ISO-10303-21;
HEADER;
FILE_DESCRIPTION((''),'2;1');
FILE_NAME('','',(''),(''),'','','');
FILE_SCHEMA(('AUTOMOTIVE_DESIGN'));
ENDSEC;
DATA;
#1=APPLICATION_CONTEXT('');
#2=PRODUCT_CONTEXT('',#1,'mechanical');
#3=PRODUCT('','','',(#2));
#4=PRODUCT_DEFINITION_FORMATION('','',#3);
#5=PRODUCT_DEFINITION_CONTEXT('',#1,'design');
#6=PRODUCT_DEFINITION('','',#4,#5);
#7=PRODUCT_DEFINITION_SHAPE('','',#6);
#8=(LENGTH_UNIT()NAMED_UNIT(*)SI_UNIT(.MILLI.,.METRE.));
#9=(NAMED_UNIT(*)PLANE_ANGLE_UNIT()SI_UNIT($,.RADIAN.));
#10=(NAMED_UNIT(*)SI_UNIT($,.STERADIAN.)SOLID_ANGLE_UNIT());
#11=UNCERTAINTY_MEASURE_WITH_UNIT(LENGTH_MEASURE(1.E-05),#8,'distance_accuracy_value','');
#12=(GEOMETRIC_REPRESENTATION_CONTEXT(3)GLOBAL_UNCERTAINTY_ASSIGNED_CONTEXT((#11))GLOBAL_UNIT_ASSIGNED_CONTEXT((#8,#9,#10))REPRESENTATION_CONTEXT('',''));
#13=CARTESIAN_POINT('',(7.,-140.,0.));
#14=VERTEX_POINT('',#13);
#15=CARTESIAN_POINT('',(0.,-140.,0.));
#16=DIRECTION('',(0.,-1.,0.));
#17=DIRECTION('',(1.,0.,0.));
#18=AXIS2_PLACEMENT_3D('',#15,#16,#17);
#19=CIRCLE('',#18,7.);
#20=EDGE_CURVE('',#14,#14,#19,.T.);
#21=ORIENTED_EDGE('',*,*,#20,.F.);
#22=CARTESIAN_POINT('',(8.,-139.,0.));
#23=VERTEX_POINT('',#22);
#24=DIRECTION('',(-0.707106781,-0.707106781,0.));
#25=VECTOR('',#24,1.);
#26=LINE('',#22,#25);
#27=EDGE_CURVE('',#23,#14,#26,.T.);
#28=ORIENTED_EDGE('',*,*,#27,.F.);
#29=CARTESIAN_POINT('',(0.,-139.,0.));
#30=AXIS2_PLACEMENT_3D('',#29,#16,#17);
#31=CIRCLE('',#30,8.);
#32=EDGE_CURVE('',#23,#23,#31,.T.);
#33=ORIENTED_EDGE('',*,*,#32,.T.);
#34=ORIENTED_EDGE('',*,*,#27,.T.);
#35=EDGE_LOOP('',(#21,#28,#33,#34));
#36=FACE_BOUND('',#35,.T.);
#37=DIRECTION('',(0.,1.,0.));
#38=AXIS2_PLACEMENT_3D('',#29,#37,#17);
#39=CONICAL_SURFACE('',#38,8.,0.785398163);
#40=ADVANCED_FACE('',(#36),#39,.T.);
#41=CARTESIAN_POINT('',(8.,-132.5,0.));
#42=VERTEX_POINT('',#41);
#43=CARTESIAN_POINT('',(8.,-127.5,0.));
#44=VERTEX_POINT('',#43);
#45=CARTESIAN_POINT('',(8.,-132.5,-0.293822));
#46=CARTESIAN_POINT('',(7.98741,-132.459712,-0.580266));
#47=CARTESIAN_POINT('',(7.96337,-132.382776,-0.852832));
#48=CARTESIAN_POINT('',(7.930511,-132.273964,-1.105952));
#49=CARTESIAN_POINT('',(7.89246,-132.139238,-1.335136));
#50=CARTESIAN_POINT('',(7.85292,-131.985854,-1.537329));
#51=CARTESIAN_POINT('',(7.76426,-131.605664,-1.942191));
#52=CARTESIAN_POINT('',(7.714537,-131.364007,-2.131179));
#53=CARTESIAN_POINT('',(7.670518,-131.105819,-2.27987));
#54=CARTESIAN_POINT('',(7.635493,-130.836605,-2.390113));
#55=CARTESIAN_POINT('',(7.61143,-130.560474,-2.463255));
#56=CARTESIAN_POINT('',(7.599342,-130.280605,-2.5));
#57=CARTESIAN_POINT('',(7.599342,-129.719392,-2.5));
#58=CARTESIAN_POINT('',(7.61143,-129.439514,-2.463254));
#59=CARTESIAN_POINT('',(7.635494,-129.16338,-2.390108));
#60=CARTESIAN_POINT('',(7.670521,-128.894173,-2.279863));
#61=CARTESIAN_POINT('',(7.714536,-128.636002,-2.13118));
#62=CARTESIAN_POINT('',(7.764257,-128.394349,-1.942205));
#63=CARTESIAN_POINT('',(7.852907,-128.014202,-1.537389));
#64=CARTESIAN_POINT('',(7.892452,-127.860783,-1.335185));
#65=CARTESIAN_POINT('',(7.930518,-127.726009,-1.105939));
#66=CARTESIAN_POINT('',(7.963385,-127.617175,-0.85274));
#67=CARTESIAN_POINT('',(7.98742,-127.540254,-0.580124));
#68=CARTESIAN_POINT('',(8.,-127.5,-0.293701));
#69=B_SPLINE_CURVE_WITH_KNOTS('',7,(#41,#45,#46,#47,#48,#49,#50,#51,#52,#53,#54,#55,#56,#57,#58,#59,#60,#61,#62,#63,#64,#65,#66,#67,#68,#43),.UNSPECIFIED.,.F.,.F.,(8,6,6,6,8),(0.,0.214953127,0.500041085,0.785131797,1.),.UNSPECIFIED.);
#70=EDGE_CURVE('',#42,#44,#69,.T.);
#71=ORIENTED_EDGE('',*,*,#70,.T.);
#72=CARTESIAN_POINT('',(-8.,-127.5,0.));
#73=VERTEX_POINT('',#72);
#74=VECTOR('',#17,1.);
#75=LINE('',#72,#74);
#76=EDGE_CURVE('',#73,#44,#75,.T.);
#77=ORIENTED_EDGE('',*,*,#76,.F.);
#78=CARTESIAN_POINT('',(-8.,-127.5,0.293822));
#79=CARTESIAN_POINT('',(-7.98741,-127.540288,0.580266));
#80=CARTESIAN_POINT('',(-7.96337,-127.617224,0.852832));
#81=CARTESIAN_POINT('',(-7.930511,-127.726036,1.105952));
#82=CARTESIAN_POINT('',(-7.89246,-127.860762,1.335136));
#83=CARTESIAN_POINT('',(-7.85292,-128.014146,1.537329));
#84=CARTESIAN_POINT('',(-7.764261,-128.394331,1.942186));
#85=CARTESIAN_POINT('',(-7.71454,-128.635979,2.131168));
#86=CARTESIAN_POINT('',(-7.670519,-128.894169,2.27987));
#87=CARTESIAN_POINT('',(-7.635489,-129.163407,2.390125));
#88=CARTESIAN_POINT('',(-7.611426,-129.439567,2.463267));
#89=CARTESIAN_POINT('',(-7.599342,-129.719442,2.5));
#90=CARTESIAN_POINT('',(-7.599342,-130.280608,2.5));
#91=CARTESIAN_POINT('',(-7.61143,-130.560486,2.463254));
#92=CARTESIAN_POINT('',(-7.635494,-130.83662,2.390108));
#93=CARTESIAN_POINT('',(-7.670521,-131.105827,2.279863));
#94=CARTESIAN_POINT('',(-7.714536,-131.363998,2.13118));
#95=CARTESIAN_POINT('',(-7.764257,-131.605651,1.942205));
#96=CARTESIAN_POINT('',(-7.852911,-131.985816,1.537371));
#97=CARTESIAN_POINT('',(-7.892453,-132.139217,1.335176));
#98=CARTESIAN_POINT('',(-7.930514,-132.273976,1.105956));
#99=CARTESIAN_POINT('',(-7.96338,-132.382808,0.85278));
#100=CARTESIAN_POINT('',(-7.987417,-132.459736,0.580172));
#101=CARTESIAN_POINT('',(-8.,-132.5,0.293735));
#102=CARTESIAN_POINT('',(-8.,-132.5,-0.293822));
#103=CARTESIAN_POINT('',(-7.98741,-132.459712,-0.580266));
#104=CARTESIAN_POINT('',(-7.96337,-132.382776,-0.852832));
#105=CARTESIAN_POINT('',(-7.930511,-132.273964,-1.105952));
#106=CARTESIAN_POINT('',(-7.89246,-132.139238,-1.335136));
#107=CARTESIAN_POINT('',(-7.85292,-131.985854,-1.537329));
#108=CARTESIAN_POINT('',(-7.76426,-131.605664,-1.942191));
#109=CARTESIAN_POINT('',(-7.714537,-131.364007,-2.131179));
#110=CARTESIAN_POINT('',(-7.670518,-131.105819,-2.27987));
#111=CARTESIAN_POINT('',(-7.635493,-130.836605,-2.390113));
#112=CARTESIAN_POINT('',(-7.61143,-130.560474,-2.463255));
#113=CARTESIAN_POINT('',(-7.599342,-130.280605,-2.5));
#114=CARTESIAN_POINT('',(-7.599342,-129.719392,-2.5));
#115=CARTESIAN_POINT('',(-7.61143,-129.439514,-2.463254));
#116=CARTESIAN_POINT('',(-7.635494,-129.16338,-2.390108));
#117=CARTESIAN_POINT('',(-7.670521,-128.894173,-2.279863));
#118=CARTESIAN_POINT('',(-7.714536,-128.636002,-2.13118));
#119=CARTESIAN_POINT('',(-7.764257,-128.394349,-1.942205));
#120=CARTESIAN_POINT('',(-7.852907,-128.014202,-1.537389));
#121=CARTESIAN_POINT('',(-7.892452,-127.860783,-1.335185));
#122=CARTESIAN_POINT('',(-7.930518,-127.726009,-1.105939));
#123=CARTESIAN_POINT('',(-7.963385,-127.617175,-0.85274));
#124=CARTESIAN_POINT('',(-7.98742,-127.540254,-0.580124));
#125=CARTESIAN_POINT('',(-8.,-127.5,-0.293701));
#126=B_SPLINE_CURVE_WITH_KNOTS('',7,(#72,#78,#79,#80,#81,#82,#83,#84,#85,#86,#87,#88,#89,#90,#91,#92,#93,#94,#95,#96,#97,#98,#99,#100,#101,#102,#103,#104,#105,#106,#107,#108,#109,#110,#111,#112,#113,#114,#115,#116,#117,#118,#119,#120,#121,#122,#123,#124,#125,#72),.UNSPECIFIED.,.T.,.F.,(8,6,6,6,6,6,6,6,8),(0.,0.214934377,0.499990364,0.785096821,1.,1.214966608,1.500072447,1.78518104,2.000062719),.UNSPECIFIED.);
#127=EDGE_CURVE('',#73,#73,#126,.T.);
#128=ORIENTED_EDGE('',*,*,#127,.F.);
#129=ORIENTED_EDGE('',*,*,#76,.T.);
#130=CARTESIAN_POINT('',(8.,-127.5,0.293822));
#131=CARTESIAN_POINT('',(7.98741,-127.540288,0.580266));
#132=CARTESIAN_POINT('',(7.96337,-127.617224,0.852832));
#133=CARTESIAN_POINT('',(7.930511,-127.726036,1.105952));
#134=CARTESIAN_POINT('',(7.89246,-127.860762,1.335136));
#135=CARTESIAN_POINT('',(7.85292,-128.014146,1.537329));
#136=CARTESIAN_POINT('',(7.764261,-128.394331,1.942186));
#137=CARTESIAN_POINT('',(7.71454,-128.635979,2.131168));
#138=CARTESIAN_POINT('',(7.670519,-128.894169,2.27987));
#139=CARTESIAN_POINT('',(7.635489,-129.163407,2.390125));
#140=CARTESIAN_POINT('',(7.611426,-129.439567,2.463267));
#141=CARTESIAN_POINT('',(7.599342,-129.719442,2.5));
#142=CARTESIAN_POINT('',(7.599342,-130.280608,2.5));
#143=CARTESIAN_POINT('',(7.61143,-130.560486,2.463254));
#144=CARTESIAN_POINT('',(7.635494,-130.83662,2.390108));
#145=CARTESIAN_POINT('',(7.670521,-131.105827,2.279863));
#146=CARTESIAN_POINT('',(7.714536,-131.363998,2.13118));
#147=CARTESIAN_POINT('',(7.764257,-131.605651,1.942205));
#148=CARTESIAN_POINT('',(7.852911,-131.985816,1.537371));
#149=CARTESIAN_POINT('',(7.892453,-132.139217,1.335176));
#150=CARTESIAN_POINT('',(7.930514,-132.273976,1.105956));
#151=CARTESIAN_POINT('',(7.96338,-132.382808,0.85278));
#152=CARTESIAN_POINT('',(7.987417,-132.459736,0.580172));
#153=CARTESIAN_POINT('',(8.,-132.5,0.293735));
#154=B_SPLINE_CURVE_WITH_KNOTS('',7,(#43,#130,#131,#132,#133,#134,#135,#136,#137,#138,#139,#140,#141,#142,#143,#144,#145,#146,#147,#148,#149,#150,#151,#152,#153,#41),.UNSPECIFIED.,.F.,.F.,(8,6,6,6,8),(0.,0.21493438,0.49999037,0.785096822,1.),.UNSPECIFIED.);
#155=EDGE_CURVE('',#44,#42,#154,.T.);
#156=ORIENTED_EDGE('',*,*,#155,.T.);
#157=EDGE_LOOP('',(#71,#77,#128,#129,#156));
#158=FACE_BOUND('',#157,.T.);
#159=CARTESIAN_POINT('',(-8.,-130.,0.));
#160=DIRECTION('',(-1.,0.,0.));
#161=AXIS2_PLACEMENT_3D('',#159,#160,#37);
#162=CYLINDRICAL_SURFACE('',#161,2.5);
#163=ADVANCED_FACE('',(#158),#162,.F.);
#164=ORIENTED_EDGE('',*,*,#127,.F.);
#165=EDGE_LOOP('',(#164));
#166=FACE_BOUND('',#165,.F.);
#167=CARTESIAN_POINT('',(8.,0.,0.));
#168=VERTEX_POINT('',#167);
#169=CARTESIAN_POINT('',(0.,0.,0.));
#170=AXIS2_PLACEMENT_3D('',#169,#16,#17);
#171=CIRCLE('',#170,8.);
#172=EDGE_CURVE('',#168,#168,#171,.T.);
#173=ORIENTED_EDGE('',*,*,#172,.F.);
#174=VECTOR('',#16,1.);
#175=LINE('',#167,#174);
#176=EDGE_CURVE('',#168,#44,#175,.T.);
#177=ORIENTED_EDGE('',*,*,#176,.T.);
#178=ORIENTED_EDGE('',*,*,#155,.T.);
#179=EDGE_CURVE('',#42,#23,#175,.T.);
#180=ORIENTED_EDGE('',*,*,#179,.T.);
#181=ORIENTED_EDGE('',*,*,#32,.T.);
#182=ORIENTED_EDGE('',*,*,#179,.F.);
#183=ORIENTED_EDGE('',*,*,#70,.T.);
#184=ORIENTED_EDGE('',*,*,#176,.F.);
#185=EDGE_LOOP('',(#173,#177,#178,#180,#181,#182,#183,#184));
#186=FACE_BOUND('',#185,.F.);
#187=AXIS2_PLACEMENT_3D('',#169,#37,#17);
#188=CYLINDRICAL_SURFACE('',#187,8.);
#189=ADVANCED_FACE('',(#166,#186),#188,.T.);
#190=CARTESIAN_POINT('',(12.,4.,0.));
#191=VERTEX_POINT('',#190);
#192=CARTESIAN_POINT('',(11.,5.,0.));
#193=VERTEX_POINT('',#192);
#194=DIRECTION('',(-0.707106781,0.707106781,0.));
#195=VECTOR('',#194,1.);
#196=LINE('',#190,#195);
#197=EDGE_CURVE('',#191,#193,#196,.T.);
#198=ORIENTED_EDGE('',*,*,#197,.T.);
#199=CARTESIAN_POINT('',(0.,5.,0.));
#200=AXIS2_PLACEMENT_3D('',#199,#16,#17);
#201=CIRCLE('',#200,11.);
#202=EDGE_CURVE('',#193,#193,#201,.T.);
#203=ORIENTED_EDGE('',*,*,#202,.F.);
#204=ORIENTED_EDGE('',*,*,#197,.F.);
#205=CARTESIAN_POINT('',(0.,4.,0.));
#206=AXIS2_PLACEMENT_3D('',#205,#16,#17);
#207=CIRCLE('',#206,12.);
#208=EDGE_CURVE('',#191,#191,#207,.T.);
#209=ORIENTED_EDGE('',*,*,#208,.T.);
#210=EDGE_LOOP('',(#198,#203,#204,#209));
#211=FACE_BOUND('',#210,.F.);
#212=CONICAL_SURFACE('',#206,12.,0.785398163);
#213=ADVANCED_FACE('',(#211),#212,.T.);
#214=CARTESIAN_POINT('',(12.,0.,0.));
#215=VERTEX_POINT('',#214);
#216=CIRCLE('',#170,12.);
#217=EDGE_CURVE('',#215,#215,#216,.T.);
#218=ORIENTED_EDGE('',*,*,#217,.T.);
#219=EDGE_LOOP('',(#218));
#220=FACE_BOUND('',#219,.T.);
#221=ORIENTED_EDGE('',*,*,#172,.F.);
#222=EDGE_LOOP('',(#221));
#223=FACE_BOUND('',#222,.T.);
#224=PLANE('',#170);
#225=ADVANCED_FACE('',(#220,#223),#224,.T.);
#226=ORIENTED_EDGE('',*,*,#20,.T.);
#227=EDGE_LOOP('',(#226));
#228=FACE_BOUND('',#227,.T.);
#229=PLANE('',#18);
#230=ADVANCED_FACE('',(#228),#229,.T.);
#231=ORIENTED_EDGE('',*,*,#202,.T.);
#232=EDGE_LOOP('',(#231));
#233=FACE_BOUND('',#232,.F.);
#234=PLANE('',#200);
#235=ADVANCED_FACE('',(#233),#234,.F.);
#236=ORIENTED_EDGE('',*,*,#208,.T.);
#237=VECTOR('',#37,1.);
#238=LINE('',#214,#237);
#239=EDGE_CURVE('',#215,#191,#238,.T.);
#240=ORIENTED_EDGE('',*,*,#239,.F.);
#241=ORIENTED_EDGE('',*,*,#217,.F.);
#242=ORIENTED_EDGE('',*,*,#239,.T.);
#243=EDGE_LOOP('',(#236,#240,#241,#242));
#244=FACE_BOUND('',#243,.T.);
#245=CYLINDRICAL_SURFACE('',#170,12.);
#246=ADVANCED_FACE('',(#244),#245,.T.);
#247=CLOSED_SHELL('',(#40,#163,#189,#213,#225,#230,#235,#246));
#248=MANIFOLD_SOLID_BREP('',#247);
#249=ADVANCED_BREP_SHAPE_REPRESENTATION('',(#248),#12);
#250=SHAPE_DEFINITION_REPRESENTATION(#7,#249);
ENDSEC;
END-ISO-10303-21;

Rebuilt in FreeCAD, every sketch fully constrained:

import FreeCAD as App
import Part
import Sketcher
Q = App.Units.Quantity


def edges_at(feature, points):
    """Names of the edges that pass closest to the given points."""
    edges = feature.Shape.Edges
    near = lambda p: min(range(len(edges)), key=lambda i: edges[i].distToShape(Part.Vertex(*p))[0])
    return sorted({f"Edge{near(p) + 1}" for p in points})

doc = App.newDocument("Part")
params = doc.addObject("Spreadsheet::Sheet", "Params")
for row, (alias, value) in enumerate([
    ("sketch1_diameter", "16 mm"),
    ("pad1_length", "140 mm"),
    ("sketch2_diameter", "24 mm"),
    ("pad2_length", "5 mm"),
    ("chamfer_size", "1 mm"),
    ("sketch3_diameter", "5 mm"),
], start=1):
    params.set(f"A{row}", alias)
    params.set(f"B{row}", "=" + value)
    params.setAlias(f"B{row}", alias)

body = doc.addObject("PartDesign::Body", "Body")

# Sketch on XZ plane
sketch1 = body.newObject("Sketcher::SketchObject", "Sketch")
sketch1.AttachmentSupport = (doc.getObject("XZ_Plane"), [""])
sketch1.MapMode = "FlatFace"
sketch1.addGeometry(Part.Circle(App.Vector(0, 0, 0), App.Vector(0, 0, 1), 8), False)
sketch1.addConstraint(Sketcher.Constraint("Coincident", 0, 3, -1, 1))
sketch1.addConstraint(Sketcher.Constraint("Diameter", 0, Q("16 mm")))
sketch1.setExpression("Constraints[1]", "Params.sketch1_diameter")
pad1 = body.newObject("PartDesign::Pad", "Pad")
pad1.Profile = sketch1
pad1.setExpression("Length", "Params.pad1_length")

# Sketch on XZ plane
sketch2 = body.newObject("Sketcher::SketchObject", "Sketch001")
sketch2.AttachmentSupport = (doc.getObject("XZ_Plane"), [""])
sketch2.MapMode = "FlatFace"
sketch2.addGeometry(Part.Circle(App.Vector(0, 0, 0), App.Vector(0, 0, 1), 12), False)
sketch2.addConstraint(Sketcher.Constraint("Coincident", 0, 3, -1, 1))
sketch2.addConstraint(Sketcher.Constraint("Diameter", 0, Q("24 mm")))
sketch2.setExpression("Constraints[1]", "Params.sketch2_diameter")
pad2 = body.newObject("PartDesign::Pad", "Pad001")
pad2.Profile = sketch2
pad2.setExpression("Length", "Params.pad2_length")
pad2.Reversed = True
doc.recompute()

chamfer = body.newObject("PartDesign::Chamfer", "Chamfer")
chamfer.Base = (pad2, edges_at(pad2, [(-12, 5, 0), (-8, -140, 0)]))
chamfer.setExpression("Size", "Params.chamfer_size")

# Sketch on YZ plane
sketch3 = body.newObject("Sketcher::SketchObject", "Sketch002")
sketch3.AttachmentSupport = (doc.getObject("YZ_Plane"), [""])
sketch3.MapMode = "FlatFace"
sketch3.AttachmentOffset = App.Placement(App.Vector(0, 0, -8), App.Rotation())
sketch3.addGeometry(Part.Circle(App.Vector(-130, 0, 0), App.Vector(0, 0, 1), 2.5), False)
sketch3.addConstraint(Sketcher.Constraint("PointOnObject", 0, 3, -1))
sketch3.addConstraint(Sketcher.Constraint("Diameter", 0, Q("5 mm")))
sketch3.addConstraint(Sketcher.Constraint("DistanceX", 0, 3, -1, 1, Q("130 mm")))
sketch3.setExpression("Constraints[1]", "Params.sketch3_diameter")
pocket1 = body.newObject("PartDesign::Pocket", "Pocket")
pocket1.Profile = sketch3
pocket1.Type = "ThroughAll"
pocket1.Reversed = True

doc.recompute()
